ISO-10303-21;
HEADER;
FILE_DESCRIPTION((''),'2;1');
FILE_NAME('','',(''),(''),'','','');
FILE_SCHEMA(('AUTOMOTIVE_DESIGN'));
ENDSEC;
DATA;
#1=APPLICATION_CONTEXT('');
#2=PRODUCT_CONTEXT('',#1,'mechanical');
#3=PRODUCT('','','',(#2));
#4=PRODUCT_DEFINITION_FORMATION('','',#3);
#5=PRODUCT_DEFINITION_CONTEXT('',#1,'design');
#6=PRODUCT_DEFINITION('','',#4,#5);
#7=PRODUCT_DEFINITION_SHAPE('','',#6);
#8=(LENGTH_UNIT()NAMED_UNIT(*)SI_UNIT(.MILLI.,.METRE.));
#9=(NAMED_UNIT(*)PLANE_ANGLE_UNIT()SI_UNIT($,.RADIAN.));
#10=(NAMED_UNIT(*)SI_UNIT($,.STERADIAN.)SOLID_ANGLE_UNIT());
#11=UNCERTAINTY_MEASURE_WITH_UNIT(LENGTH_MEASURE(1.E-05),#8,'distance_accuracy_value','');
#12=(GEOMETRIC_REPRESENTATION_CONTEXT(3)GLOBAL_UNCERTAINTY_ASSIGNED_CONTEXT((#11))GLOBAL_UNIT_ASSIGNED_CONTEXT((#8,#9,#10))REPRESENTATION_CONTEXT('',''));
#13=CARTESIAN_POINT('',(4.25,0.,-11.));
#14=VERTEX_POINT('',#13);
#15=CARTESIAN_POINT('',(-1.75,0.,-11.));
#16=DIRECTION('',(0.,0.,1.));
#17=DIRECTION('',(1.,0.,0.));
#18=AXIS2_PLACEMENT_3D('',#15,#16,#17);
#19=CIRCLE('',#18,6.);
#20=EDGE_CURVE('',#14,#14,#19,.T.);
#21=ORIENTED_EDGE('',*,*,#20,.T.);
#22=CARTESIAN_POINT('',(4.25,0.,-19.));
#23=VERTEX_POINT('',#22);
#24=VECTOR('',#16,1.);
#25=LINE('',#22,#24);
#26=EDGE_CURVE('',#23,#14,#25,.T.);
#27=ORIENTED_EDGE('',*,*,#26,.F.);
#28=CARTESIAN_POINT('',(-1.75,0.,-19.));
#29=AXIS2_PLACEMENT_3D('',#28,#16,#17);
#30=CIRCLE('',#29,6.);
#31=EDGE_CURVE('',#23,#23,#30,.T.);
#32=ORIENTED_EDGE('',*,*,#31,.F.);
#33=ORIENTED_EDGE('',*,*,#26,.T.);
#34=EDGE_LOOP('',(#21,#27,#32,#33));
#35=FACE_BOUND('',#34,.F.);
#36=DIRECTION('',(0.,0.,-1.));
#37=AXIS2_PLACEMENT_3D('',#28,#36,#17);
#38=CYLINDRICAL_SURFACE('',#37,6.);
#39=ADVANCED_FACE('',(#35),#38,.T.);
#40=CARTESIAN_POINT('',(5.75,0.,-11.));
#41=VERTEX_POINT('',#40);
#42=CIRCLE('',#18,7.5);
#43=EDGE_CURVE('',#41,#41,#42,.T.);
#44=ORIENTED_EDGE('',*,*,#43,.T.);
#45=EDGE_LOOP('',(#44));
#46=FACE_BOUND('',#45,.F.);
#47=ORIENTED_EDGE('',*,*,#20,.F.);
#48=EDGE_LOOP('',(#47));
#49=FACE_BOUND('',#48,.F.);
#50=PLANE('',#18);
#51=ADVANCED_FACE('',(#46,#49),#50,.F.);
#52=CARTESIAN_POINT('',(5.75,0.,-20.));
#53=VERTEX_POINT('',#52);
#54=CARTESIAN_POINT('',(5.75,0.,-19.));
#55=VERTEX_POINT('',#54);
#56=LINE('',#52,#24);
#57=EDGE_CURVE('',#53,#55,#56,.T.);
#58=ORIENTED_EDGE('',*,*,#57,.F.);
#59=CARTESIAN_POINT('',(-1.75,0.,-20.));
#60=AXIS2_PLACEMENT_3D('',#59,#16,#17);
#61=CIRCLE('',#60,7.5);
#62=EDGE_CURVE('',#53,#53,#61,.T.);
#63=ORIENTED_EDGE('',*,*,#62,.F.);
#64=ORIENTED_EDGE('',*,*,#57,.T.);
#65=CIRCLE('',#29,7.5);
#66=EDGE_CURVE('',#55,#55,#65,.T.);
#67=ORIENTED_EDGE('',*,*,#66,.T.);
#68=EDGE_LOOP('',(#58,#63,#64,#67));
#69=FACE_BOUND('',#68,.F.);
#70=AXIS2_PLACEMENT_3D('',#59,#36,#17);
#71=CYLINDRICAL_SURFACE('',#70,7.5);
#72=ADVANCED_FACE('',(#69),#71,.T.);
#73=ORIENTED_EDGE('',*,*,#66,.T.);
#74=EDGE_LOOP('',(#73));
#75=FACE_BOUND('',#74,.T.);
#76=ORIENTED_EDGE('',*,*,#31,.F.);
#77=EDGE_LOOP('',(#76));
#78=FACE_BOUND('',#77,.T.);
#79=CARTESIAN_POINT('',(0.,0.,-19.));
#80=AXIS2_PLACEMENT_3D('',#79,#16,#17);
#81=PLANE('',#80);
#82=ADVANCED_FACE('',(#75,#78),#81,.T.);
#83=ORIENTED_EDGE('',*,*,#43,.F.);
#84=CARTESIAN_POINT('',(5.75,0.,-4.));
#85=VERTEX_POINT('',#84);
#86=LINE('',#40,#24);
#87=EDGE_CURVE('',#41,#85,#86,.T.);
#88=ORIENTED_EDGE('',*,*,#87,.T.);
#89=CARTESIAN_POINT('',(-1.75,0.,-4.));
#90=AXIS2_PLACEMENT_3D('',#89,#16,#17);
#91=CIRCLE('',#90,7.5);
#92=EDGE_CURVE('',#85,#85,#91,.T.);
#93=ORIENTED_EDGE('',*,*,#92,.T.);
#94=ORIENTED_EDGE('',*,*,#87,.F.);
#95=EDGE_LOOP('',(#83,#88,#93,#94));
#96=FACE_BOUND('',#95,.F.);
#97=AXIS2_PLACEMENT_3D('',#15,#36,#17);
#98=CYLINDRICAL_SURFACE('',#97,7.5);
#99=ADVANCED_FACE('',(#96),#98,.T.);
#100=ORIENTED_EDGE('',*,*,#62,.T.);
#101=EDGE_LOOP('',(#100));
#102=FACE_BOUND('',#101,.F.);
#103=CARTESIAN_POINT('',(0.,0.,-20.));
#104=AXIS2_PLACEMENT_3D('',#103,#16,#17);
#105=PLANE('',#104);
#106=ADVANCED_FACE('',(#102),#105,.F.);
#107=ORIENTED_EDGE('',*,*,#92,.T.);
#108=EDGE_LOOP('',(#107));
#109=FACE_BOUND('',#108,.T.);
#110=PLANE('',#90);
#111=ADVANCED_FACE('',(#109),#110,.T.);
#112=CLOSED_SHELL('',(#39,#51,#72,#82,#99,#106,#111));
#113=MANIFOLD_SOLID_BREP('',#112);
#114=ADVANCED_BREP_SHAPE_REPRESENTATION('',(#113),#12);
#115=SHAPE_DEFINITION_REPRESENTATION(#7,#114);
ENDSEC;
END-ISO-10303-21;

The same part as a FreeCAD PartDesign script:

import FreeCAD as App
import Part
import Sketcher
Q = App.Units.Quantity

doc = App.newDocument("Part")
body = doc.addObject("PartDesign::Body", "Body")

sketch1 = body.newObject("Sketcher::SketchObject", "Sketch")
sketch1.AttachmentSupport = (doc.getObject("XY_Plane"), [""])
sketch1.MapMode = "FlatFace"
sketch1.AttachmentOffset = App.Placement(App.Vector(0, 0, -20), App.Rotation())
sketch1.addGeometry(Part.Circle(App.Vector(-2, 0, 0), App.Vector(0, 0, 1), 8), False)
sketch1.addConstraint([
    Sketcher.Constraint("PointOnObject", 0, 3, -1),
    Sketcher.Constraint("Diameter", 0, Q("15 mm")),
    Sketcher.Constraint("DistanceX", 0, 3, -1, 1, Q("1.75 mm")),
])
pad1 = body.newObject("PartDesign::Pad", "Pad")
pad1.Profile = sketch1
pad1.Length = 1

sketch2 = body.newObject("Sketcher::SketchObject", "Sketch001")
sketch2.AttachmentSupport = (doc.getObject("XY_Plane"), [""])
sketch2.MapMode = "FlatFace"
sketch2.AttachmentOffset = App.Placement(App.Vector(0, 0, -19), App.Rotation())
sketch2.addGeometry(Part.Circle(App.Vector(-2, 0, 0), App.Vector(0, 0, 1), 6), False)
sketch2.addConstraint([
    Sketcher.Constraint("PointOnObject", 0, 3, -1),
    Sketcher.Constraint("Diameter", 0, Q("12 mm")),
    Sketcher.Constraint("DistanceX", 0, 3, -1, 1, Q("1.75 mm")),
])
pad2 = body.newObject("PartDesign::Pad", "Pad001")
pad2.Profile = sketch2
pad2.Length = 8

sketch3 = body.newObject("Sketcher::SketchObject", "Sketch002")
sketch3.AttachmentSupport = (doc.getObject("XY_Plane"), [""])
sketch3.MapMode = "FlatFace"
sketch3.AttachmentOffset = App.Placement(App.Vector(0, 0, -11), App.Rotation())
sketch3.addGeometry(Part.Circle(App.Vector(-2, 0, 0), App.Vector(0, 0, 1), 8), False)
sketch3.addConstraint([
    Sketcher.Constraint("PointOnObject", 0, 3, -1),
    Sketcher.Constraint("Diameter", 0, Q("15 mm")),
    Sketcher.Constraint("DistanceX", 0, 3, -1, 1, Q("1.75 mm")),
])
pad3 = body.newObject("PartDesign::Pad", "Pad002")
pad3.Profile = sketch3
pad3.Length = 7

doc.recompute()
